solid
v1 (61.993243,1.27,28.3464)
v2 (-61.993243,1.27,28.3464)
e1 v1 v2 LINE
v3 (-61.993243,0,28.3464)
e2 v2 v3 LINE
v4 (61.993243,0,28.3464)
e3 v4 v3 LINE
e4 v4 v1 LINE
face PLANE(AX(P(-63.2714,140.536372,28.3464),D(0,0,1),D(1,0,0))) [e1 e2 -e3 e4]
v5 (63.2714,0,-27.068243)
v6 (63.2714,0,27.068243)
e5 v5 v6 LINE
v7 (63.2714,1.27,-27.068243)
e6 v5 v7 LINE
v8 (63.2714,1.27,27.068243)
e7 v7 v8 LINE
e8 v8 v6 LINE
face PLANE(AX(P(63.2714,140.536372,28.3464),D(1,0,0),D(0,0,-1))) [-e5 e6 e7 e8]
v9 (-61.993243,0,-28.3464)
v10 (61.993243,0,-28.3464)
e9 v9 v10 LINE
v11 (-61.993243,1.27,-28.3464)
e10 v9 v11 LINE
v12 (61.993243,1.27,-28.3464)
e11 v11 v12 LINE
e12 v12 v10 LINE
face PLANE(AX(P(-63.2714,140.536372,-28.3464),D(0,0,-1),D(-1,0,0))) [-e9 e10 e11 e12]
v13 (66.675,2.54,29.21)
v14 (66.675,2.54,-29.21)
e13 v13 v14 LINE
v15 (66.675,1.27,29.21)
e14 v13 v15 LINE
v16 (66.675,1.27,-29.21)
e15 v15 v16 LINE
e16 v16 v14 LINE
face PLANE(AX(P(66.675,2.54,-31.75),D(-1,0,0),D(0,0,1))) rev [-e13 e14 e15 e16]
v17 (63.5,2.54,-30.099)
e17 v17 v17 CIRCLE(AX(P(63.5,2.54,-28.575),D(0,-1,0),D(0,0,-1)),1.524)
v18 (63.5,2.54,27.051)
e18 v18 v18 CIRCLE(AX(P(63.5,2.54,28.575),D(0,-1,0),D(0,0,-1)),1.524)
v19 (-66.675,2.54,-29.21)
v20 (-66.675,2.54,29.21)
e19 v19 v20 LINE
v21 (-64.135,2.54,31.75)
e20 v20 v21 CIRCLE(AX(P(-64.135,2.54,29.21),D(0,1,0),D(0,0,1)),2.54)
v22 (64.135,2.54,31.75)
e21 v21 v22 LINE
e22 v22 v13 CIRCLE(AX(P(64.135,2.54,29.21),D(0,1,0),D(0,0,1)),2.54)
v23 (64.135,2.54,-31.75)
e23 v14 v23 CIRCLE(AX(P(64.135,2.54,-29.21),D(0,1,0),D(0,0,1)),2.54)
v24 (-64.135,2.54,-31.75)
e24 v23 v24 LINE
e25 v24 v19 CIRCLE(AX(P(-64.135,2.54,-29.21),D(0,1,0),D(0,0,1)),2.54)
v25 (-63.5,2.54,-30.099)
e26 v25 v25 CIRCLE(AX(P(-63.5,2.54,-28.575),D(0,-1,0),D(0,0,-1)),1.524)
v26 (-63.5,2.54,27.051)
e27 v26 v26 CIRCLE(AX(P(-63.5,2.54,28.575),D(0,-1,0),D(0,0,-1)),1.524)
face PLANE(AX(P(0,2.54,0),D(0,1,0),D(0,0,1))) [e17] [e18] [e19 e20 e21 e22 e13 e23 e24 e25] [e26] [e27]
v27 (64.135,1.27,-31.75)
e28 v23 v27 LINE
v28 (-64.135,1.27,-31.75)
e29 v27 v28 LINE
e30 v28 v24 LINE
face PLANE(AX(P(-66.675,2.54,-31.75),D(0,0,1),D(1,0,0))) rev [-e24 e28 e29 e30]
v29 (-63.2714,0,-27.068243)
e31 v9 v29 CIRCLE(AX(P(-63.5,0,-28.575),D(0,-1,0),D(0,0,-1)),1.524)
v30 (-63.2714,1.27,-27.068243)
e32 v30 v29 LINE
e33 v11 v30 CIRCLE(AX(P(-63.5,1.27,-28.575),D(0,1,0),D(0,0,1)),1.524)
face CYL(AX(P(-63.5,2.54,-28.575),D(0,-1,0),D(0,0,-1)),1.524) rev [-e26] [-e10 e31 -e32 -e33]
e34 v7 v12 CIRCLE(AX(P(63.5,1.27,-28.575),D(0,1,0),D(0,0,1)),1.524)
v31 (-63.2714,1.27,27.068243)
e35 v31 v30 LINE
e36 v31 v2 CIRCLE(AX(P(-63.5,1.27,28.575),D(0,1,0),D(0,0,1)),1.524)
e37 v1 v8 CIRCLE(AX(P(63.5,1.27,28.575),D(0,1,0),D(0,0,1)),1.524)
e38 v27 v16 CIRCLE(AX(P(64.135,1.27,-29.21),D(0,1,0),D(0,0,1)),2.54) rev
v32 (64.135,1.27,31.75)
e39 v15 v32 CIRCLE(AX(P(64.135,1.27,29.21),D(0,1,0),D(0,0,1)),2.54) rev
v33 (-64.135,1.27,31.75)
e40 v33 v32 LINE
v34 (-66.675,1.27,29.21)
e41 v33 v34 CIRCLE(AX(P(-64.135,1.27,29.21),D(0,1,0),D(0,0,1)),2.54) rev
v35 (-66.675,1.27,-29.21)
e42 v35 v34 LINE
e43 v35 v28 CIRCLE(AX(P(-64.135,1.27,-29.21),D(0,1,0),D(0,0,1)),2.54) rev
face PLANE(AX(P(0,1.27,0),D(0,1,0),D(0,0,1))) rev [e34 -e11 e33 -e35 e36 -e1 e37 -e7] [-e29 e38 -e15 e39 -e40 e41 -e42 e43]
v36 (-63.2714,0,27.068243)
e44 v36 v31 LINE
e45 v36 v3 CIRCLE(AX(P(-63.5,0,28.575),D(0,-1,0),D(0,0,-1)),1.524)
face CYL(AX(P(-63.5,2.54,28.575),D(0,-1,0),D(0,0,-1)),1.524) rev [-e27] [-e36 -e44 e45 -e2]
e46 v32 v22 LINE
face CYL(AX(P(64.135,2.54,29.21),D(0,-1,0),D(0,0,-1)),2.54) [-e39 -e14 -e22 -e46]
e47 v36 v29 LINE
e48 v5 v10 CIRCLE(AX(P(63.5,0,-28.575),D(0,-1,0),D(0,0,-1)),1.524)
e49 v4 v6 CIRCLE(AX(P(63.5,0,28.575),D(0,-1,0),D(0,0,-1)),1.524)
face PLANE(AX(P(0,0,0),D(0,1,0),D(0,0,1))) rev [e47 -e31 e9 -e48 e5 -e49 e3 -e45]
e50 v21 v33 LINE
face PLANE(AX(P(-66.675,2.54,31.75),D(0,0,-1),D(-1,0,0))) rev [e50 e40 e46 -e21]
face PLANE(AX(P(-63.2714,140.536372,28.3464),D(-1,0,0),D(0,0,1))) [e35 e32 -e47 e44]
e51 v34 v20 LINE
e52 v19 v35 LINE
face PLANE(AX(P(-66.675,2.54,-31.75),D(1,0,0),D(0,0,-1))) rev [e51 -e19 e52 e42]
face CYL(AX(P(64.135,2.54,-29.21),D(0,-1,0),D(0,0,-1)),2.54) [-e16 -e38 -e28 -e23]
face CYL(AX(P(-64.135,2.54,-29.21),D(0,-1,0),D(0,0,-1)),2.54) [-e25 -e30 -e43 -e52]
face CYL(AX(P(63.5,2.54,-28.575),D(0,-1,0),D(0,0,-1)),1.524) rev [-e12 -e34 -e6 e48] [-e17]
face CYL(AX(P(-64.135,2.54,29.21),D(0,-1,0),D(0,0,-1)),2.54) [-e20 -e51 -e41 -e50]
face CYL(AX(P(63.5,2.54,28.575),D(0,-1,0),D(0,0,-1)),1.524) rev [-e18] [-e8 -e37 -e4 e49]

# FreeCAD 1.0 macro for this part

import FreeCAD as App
import Part
import Sketcher
Q = App.Units.Quantity


def edges_at(feature, points):
    """Names of the edges that pass closest to the given points."""
    edges = feature.Shape.Edges
    near = lambda p: min(range(len(edges)), key=lambda i: edges[i].distToShape(Part.Vertex(*p))[0])
    return sorted({f"Edge{near(p) + 1}" for p in points})

doc = App.newDocument("Part")
params = doc.addObject("Spreadsheet::Sheet", "Params")
for row, (alias, value) in enumerate([
    ("sketch1_width", "5 in"),
    ("sketch1_height", "2.25 in"),
    ("pad1_length", "0.05 in"),
    ("sketch2_height", "2.5 in"),
    ("sketch2_width", "5.25 in"),
    ("pad2_length", "0.05 in"),
    ("sketch3_diameter", "0.12 in"),
    ("fillet_radius", "0.1 in"),
    ("sketch4_width", "5 in"),
    ("sketch4_height", "2.25 in"),
    ("sketch4_width2", "4.982 in"),
    ("sketch4_height2", "2.232 in"),
    ("pocket2_length", "0.05 in"),
], start=1):
    params.set(f"A{row}", alias)
    params.set(f"B{row}", "=" + value)
    params.setAlias(f"B{row}", alias)

body = doc.addObject("PartDesign::Body", "Body")

sketch1 = body.newObject("Sketcher::SketchObject", "Sketch")
sketch1.AttachmentSupport = (doc.getObject("XZ_Plane"), [""])
sketch1.MapMode = "FlatFace"
sketch1.addGeometry([
    Part.LineSegment(App.Vector(-64, -29, 0), App.Vector(-64, 29, 0)),
    Part.LineSegment(App.Vector(-64, 29, 0), App.Vector(64, 29, 0)),
    Part.LineSegment(App.Vector(64, 29, 0), App.Vector(64, -29, 0)),
    Part.LineSegment(App.Vector(64, -29, 0), App.Vector(-64, -29, 0)),
], False)
sketch1.addConstraint([
    Sketcher.Constraint("Coincident", 0, 2, 1, 1),
    Sketcher.Constraint("Coincident", 1, 2, 2, 1),
    Sketcher.Constraint("Coincident", 2, 2, 3, 1),
    Sketcher.Constraint("Coincident", 3, 2, 0, 1),
    Sketcher.Constraint("Vertical", 0),
    Sketcher.Constraint("Horizontal", 1),
    Sketcher.Constraint("Vertical", 2),
    Sketcher.Constraint("Horizontal", 3),
    Sketcher.Constraint("Symmetric", 0, 2, 2, 2, -1, 1),
    Sketcher.Constraint("DistanceX", 1, 1, 1, 2, Q("5 in")),
    Sketcher.Constraint("DistanceY", 0, 1, 0, 2, Q("2.25 in")),
])
sketch1.setExpression("Constraints[9]", "Params.sketch1_width")
sketch1.setExpression("Constraints[10]", "Params.sketch1_height")
pad1 = body.newObject("PartDesign::Pad", "Pad")
pad1.Profile = sketch1
pad1.setExpression("Length", "Params.pad1_length")
pad1.Reversed = True

sketch2 = body.newObject("Sketcher::SketchObject", "Sketch001")
sketch2.AttachmentSupport = (doc.getObject("XZ_Plane"), [""])
sketch2.MapMode = "FlatFace"
sketch2.AttachmentOffset = App.Placement(App.Vector(0, 0, -0.05 * 25.4), App.Rotation())
sketch2.addGeometry([
    Part.LineSegment(App.Vector(-67, -32, 0), App.Vector(-67, 32, 0)),
    Part.LineSegment(App.Vector(-67, 32, 0), App.Vector(67, 32, 0)),
    Part.LineSegment(App.Vector(67, 32, 0), App.Vector(67, -32, 0)),
    Part.LineSegment(App.Vector(67, -32, 0), App.Vector(-67, -32, 0)),
], False)
sketch2.addConstraint([
    Sketcher.Constraint("Coincident", 0, 2, 1, 1),
    Sketcher.Constraint("Coincident", 1, 2, 2, 1),
    Sketcher.Constraint("Coincident", 2, 2, 3, 1),
    Sketcher.Constraint("Coincident", 3, 2, 0, 1),
    Sketcher.Constraint("Vertical", 0),
    Sketcher.Constraint("Horizontal", 1),
    Sketcher.Constraint("Vertical", 2),
    Sketcher.Constraint("Horizontal", 3),
    Sketcher.Constraint("Symmetric", 0, 2, 2, 2, -1, 1),
    Sketcher.Constraint("DistanceY", 0, 1, 0, 2, Q("2.5 in")),
    Sketcher.Constraint("DistanceX", 1, 1, 1, 2, Q("5.25 in")),
])
sketch2.setExpression("Constraints[9]", "Params.sketch2_height")
sketch2.setExpression("Constraints[10]", "Params.sketch2_width")
pad2 = body.newObject("PartDesign::Pad", "Pad001")
pad2.Profile = sketch2
pad2.setExpression("Length", "Params.pad2_length")
pad2.Reversed = True

sketch3 = body.newObject("Sketcher::SketchObject", "Sketch002")
sketch3.AttachmentSupport = (doc.getObject("XZ_Plane"), [""])
sketch3.MapMode = "FlatFace"
sketch3.addGeometry([
    Part.Circle(App.Vector(-63.5, 28.6, 0), App.Vector(0, 0, 1), 1.5),
    Part.Circle(App.Vector(63.5, 28.6, 0), App.Vector(0, 0, 1), 1.5),
    Part.Circle(App.Vector(63.5, -28.6, 0), App.Vector(0, 0, 1), 1.5),
    Part.Circle(App.Vector(-63.5, -28.6, 0), App.Vector(0, 0, 1), 1.5),
], False)
sketch3.addConstraint([
    Sketcher.Constraint("Equal", 0, 1),
    Sketcher.Constraint("Equal", 1, 2),
    Sketcher.Constraint("Equal", 2, 3),
    Sketcher.Constraint("Symmetric", 0, 3, 2, 3, -1, 1),
    Sketcher.Constraint("Symmetric", 1, 3, 3, 3, -1, 1),
    Sketcher.Constraint("Symmetric", 0, 3, 1, 3, -2),
    Sketcher.Constraint("Diameter", 0, Q("0.12 in")),
    Sketcher.Constraint("DistanceX", 0, 3, 1, 3, Q("5 in")),
    Sketcher.Constraint("DistanceY", 2, 3, 1, 3, Q("2.25 in")),
])
sketch3.setExpression("Constraints[6]", "Params.sketch3_diameter")
pocket1 = body.newObject("PartDesign::Pocket", "Pocket")
pocket1.Profile = sketch3
pocket1.Type = "ThroughAll"
doc.recompute()

fillet = body.newObject("PartDesign::Fillet", "Fillet")
fillet.Base = (pocket1, edges_at(pocket1, [
    (66.675, 1.905, 31.75),
    (66.675, 1.905, -31.75),
    (-66.675, 1.905, -31.75),
    (-66.675, 1.905, 31.75),
]))
fillet.setExpression("Radius", "Params.fillet_radius")

sketch4 = body.newObject("Sketcher::SketchObject", "Sketch003")
sketch4.AttachmentSupport = (doc.getObject("XZ_Plane"), [""])
sketch4.MapMode = "FlatFace"
sketch4.addGeometry([
    Part.LineSegment(App.Vector(64, -29, 0), App.Vector(64, 29, 0)),
    Part.LineSegment(App.Vector(64, 29, 0), App.Vector(-64, 29, 0)),
    Part.LineSegment(App.Vector(-64, 29, 0), App.Vector(-64, -29, 0)),
    Part.LineSegment(App.Vector(-64, -29, 0), App.Vector(64, -29, 0)),
    Part.LineSegment(App.Vector(-63, 28, 0), App.Vector(63, 28, 0)),
    Part.LineSegment(App.Vector(63, 28, 0), App.Vector(63, -28, 0)),
    Part.LineSegment(App.Vector(63, -28, 0), App.Vector(-63, -28, 0)),
    Part.LineSegment(App.Vector(-63, -28, 0), App.Vector(-63, 28, 0)),
], False)
sketch4.addConstraint([
    Sketcher.Constraint("Coincident", 0, 2, 1, 1),
    Sketcher.Constraint("Coincident", 1, 2, 2, 1),
    Sketcher.Constraint("Coincident", 2, 2, 3, 1),
    Sketcher.Constraint("Coincident", 3, 2, 0, 1),
    Sketcher.Constraint("Coincident", 4, 2, 5, 1),
    Sketcher.Constraint("Coincident", 5, 2, 6, 1),
    Sketcher.Constraint("Coincident", 6, 2, 7, 1),
    Sketcher.Constraint("Coincident", 7, 2, 4, 1),
    Sketcher.Constraint("Vertical", 0),
    Sketcher.Constraint("Horizontal", 1),
    Sketcher.Constraint("Vertical", 2),
    Sketcher.Constraint("Horizontal", 3),
    Sketcher.Constraint("Horizontal", 4),
    Sketcher.Constraint("Vertical", 5),
    Sketcher.Constraint("Horizontal", 6),
    Sketcher.Constraint("Vertical", 7),
    Sketcher.Constraint("Symmetric", 0, 2, 2, 2, -1, 1),
    Sketcher.Constraint("Symmetric", 4, 2, 6, 2, -1, 1),
    Sketcher.Constraint("DistanceX", 1, 2, 1, 1, Q("5 in")),
    Sketcher.Constraint("DistanceY", 0, 1, 0, 2, Q("2.25 in")),
    Sketcher.Constraint("DistanceX", 4, 1, 4, 2, Q("4.982 in")),
    Sketcher.Constraint("DistanceY", 5, 2, 5, 1, Q("2.232 in")),
])
sketch4.setExpression("Constraints[18]", "Params.sketch4_width")
sketch4.setExpression("Constraints[19]", "Params.sketch4_height")
sketch4.setExpression("Constraints[20]", "Params.sketch4_width2")
sketch4.setExpression("Constraints[21]", "Params.sketch4_height2")
pocket2 = body.newObject("PartDesign::Pocket", "Pocket001")
pocket2.Profile = sketch4
pocket2.setExpression("Length", "Params.pocket2_length")

doc.recompute()
